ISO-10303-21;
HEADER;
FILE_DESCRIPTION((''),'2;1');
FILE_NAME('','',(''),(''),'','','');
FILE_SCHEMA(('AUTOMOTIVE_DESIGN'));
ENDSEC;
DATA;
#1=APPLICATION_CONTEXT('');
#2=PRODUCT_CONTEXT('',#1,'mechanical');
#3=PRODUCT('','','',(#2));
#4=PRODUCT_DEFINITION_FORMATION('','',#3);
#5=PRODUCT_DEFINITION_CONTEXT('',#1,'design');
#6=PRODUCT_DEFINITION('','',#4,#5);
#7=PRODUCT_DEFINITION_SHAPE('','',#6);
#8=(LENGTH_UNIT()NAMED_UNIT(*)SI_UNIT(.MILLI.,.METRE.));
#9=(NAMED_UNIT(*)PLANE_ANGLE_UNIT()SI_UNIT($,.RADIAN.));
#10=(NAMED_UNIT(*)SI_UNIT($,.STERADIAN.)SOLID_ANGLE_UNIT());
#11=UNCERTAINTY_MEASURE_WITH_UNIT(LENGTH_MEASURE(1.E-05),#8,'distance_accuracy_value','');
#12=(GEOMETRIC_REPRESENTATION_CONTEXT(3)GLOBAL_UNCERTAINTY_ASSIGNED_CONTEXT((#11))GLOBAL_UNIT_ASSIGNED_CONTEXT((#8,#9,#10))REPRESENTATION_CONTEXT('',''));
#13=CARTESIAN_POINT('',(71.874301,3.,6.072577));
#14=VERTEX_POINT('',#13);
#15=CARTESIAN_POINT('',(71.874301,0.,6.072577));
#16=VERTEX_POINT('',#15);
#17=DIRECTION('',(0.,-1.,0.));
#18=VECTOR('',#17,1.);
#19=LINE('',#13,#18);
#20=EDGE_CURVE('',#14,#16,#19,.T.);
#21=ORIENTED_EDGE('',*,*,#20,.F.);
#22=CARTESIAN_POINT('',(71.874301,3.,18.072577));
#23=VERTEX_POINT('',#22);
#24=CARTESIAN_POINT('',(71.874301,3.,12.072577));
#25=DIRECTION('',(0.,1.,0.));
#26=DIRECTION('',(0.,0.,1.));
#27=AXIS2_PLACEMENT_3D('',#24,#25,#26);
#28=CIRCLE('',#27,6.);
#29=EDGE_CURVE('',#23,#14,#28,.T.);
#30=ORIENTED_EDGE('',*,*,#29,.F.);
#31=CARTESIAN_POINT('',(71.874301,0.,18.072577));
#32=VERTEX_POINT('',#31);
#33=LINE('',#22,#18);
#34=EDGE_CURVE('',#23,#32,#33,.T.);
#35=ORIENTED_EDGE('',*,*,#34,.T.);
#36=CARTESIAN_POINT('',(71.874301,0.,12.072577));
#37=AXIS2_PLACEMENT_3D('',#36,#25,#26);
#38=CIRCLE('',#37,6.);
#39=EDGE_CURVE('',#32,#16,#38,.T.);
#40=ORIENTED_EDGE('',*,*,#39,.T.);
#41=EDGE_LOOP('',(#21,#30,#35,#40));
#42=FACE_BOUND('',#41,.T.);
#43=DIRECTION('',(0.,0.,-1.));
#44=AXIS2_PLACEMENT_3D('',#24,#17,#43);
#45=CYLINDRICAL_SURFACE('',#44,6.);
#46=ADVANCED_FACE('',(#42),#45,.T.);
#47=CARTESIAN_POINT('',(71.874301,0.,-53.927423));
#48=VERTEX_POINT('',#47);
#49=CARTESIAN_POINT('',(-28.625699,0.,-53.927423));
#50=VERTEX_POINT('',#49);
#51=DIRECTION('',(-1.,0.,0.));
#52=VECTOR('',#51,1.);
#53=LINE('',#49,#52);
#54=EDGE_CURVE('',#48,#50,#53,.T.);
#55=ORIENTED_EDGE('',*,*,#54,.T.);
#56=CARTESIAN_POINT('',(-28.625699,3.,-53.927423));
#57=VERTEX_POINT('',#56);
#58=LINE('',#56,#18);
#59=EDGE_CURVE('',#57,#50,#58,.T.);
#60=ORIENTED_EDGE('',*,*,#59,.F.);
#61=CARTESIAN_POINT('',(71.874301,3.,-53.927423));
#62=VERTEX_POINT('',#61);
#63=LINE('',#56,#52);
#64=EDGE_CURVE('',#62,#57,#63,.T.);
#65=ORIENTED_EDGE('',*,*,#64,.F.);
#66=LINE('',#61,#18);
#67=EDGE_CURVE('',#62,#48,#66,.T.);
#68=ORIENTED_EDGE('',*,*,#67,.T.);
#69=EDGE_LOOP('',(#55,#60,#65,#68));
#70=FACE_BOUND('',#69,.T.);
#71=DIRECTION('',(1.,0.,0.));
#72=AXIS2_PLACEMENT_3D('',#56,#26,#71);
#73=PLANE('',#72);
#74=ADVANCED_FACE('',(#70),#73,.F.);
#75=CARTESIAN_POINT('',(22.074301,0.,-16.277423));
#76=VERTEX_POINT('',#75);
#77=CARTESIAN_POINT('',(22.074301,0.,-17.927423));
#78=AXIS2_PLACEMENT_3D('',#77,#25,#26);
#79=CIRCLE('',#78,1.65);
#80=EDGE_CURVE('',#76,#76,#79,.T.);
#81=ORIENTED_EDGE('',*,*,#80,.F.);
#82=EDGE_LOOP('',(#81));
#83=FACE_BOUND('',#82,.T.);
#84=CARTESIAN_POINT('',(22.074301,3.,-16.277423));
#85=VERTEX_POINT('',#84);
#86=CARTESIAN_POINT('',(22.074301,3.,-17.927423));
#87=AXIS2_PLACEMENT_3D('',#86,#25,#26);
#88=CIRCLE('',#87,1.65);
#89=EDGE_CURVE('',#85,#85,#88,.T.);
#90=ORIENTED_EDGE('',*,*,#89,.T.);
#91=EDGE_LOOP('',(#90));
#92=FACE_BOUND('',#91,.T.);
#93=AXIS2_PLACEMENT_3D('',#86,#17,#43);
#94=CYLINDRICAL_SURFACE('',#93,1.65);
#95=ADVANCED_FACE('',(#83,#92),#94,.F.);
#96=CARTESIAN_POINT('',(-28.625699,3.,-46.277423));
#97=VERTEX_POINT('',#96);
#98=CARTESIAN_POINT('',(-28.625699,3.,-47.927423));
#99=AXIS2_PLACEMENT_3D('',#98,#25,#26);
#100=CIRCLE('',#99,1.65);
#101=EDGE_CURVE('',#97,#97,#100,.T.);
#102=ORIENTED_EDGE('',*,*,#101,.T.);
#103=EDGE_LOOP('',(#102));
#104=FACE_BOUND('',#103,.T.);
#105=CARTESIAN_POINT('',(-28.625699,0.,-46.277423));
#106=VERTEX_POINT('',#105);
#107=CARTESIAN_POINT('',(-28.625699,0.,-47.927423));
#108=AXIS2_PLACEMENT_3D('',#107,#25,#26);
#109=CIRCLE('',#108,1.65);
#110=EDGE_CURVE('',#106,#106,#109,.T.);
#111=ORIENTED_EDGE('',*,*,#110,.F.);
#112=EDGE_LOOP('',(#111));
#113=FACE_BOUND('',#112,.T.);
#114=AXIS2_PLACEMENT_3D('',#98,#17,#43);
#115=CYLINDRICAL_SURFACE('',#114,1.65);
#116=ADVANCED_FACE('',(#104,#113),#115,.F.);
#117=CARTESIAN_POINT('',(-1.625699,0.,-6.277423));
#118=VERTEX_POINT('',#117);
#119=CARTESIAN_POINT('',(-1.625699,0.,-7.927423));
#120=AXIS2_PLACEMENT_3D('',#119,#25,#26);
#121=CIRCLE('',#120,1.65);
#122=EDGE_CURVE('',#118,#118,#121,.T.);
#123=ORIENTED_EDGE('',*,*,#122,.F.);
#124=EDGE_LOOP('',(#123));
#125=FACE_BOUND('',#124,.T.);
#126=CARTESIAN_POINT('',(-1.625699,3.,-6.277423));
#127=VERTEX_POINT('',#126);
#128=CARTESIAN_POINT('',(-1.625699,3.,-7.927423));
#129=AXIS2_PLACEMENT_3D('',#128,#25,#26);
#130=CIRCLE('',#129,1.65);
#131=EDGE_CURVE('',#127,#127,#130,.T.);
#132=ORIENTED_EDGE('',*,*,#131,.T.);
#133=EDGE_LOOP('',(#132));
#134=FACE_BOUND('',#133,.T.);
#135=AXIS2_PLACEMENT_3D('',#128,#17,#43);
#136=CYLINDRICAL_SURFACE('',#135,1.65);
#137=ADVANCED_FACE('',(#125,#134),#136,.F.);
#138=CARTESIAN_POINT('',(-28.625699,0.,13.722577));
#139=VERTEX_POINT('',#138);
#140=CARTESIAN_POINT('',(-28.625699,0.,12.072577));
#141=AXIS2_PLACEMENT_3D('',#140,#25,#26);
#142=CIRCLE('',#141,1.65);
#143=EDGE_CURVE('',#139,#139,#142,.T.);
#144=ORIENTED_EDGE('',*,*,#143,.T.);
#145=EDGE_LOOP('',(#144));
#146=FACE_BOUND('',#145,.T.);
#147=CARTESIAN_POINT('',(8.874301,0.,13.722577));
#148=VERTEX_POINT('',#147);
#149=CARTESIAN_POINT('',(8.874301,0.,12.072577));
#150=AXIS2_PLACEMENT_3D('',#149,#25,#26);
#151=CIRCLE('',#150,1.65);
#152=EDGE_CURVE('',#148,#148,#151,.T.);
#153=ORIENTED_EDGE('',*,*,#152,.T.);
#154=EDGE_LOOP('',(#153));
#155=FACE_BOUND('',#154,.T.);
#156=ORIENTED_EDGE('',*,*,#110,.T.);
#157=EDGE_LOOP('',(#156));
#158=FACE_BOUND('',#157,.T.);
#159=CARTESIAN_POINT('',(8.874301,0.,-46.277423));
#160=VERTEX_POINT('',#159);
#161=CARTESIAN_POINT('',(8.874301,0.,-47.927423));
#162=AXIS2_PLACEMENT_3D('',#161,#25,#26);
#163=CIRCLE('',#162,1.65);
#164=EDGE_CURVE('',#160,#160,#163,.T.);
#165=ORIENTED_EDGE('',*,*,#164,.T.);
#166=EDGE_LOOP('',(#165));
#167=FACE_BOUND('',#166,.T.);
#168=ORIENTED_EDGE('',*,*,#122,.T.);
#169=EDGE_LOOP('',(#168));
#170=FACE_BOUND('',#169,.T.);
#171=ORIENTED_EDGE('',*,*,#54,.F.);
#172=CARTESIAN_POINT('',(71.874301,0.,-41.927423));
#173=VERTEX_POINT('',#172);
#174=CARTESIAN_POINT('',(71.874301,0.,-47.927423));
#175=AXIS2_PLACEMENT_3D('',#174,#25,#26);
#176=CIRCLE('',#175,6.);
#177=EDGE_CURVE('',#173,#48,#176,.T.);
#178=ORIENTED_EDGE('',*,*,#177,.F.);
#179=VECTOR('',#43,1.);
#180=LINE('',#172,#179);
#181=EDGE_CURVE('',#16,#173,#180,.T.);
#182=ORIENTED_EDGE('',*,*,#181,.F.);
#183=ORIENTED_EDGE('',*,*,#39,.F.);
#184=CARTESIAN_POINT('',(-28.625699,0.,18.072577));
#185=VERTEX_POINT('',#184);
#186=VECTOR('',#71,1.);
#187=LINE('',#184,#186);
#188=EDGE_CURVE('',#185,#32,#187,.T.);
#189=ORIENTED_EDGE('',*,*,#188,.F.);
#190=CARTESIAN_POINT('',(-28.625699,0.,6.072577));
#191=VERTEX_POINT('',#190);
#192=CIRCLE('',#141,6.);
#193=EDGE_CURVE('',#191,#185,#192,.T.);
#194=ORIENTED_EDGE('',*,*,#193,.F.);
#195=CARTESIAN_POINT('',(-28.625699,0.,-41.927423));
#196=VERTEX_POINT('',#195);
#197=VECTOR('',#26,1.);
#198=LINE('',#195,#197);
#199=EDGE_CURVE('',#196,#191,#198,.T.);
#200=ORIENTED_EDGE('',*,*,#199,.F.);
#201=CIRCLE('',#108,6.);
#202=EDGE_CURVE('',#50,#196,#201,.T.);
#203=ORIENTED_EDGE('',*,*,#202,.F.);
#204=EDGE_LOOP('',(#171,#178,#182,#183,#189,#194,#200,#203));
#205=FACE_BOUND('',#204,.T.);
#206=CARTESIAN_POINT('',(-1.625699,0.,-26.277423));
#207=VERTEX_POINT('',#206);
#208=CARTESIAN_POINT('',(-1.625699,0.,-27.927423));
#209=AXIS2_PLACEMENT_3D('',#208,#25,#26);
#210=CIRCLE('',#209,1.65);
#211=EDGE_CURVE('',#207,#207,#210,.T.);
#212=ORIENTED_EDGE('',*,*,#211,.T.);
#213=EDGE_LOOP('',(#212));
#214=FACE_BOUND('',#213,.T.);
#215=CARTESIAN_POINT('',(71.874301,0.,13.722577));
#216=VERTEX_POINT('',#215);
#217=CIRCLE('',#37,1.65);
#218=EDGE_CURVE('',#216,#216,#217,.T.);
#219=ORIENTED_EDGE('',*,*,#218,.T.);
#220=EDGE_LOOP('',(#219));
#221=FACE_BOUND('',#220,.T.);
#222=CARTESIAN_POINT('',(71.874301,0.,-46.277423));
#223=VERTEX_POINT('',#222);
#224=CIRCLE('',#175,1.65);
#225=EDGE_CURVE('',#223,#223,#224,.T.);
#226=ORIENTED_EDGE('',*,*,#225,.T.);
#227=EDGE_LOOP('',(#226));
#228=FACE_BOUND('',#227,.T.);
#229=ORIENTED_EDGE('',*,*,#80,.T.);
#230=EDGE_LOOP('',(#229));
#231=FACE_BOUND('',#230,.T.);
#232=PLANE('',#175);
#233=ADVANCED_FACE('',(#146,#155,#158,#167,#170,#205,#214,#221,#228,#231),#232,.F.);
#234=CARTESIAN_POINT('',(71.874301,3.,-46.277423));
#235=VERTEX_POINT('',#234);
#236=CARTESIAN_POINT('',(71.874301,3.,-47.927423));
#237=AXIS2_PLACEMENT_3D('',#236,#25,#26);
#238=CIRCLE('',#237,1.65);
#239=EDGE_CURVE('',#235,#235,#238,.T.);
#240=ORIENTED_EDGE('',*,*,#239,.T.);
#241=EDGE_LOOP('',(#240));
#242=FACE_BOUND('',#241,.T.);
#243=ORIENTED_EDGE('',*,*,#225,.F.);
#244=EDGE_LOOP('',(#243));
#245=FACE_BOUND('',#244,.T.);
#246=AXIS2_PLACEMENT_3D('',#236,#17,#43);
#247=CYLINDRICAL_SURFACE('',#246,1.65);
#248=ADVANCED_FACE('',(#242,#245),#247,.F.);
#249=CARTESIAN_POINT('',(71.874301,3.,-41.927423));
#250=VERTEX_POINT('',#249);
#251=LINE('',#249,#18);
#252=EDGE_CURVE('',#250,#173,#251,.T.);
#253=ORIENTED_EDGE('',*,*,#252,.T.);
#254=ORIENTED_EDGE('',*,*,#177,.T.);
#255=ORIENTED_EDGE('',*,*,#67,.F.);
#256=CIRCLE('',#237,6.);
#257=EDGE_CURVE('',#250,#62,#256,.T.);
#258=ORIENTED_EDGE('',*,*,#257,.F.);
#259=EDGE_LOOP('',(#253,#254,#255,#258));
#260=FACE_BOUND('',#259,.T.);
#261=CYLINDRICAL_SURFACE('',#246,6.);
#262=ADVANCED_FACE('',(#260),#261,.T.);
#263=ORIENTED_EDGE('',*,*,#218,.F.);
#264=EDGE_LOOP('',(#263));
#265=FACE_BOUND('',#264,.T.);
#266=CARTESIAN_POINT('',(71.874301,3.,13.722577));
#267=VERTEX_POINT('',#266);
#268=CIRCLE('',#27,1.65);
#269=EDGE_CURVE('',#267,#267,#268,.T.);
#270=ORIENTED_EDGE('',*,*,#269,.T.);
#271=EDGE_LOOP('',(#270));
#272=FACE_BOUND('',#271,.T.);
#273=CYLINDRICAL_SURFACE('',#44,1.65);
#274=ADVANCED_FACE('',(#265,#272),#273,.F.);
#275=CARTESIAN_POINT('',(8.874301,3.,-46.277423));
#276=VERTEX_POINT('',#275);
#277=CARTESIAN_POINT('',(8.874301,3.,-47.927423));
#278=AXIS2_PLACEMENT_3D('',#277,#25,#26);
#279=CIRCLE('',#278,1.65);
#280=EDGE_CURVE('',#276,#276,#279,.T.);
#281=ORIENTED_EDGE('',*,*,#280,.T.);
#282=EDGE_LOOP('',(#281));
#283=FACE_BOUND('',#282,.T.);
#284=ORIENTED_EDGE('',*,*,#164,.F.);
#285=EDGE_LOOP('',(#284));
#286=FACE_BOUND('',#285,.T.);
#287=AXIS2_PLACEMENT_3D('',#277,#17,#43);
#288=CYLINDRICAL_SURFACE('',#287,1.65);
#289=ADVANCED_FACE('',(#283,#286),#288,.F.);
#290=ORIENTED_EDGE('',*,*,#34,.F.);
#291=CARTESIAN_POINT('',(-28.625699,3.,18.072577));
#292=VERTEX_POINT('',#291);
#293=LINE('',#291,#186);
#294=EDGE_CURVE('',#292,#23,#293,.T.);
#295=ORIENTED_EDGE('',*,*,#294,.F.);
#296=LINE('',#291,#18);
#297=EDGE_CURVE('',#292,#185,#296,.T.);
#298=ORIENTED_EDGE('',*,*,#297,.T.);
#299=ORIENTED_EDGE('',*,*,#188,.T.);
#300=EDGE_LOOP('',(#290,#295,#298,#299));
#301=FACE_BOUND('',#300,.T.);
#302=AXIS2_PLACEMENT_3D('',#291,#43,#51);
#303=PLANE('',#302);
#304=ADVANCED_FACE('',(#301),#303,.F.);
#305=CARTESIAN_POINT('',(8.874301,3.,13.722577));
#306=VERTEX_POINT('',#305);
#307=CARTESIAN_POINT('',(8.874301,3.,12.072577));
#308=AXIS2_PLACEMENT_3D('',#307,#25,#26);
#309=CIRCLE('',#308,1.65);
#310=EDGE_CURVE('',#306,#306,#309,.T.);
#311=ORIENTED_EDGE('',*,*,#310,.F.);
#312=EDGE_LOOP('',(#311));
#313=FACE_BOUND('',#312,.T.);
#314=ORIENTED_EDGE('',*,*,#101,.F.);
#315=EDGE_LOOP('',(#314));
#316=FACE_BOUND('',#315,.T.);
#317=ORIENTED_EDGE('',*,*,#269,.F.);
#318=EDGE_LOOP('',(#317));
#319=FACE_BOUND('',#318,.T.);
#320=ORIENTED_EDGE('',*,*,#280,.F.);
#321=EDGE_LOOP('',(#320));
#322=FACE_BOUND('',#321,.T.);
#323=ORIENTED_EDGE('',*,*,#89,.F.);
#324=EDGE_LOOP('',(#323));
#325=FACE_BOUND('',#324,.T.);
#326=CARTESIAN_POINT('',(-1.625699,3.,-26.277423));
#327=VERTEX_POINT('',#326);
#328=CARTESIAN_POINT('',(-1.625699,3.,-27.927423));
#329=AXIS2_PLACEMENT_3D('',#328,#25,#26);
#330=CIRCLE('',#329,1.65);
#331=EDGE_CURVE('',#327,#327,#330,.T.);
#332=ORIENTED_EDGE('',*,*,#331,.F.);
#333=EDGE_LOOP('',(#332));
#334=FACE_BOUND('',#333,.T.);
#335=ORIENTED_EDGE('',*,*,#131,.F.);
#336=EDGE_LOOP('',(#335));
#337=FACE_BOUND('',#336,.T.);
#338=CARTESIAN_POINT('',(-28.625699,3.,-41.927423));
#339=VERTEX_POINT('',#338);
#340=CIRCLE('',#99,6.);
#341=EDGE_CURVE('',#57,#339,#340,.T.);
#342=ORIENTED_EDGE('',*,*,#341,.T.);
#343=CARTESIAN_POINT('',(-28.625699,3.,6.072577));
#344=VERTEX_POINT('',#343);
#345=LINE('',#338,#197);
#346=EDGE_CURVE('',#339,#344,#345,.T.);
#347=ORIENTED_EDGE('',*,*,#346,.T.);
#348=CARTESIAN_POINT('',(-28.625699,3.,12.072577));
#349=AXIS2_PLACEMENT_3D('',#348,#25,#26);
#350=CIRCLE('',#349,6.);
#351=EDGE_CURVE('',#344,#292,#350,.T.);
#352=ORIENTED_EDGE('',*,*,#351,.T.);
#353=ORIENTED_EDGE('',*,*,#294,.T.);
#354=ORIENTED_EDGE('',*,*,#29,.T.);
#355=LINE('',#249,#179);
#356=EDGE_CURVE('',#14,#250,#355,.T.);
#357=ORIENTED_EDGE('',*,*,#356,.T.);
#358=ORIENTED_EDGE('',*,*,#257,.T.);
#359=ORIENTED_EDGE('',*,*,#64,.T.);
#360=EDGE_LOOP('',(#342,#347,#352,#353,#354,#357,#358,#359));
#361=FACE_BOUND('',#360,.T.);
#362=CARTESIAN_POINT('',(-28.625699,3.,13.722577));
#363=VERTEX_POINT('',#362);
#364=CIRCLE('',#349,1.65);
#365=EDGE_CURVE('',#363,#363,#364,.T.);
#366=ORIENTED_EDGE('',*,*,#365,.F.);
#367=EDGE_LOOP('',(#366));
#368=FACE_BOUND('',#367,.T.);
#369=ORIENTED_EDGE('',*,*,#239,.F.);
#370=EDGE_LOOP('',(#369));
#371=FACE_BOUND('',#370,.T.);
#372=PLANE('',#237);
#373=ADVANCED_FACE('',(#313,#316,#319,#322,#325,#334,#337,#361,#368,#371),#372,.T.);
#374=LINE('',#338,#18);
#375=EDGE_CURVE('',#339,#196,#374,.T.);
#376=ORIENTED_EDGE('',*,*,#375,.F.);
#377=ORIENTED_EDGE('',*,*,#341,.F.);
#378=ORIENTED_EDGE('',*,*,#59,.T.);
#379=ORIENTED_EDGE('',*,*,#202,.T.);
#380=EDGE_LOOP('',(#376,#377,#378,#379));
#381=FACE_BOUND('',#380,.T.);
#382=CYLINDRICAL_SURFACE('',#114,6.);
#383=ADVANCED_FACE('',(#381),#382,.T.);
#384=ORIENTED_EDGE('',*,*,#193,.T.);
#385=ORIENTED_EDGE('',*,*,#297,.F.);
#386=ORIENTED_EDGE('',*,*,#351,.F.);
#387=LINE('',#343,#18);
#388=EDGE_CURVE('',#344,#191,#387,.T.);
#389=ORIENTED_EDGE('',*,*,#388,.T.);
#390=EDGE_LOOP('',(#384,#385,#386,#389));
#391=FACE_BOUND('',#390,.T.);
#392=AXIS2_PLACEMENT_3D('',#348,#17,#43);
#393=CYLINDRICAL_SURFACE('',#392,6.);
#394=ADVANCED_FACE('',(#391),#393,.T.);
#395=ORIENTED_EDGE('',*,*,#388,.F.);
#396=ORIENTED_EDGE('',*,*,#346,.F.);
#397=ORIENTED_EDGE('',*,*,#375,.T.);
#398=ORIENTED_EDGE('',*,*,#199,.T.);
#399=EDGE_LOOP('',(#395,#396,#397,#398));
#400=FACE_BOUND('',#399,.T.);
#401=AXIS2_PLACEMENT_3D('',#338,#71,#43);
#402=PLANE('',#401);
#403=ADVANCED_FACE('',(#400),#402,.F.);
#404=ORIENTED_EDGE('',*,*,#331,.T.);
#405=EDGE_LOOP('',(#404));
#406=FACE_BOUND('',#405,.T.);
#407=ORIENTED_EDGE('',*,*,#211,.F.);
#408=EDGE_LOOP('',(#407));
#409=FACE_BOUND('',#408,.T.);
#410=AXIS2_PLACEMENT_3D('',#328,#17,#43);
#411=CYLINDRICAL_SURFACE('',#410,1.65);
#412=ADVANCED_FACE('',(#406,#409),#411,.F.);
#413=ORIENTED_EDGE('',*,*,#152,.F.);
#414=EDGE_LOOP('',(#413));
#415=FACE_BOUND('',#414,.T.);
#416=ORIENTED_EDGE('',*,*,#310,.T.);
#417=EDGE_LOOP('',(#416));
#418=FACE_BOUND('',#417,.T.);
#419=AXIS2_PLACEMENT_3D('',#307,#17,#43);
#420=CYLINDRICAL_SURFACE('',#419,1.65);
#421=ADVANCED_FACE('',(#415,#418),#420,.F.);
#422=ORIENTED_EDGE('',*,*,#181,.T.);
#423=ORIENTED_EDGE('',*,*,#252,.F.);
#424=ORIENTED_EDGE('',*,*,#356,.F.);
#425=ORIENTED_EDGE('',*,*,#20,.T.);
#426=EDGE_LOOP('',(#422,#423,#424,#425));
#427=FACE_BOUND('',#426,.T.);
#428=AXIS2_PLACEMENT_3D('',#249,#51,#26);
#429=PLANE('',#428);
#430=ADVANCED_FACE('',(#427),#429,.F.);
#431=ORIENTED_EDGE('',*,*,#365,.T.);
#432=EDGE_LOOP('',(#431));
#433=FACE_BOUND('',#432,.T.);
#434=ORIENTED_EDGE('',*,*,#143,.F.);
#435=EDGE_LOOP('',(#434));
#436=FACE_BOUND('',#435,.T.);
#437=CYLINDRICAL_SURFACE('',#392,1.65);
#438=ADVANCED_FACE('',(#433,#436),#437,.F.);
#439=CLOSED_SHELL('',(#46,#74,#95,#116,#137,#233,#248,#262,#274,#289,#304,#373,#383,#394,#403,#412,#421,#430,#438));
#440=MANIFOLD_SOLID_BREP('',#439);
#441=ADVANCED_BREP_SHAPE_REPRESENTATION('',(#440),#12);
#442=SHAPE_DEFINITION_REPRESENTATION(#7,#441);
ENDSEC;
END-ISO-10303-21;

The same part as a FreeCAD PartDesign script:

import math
import FreeCAD as App
import Part
import Sketcher
Q = App.Units.Quantity

doc = App.newDocument("Part")
body = doc.addObject("PartDesign::Body", "Body")

# Sketch on XZ plane
sketch1 = body.newObject("Sketcher::SketchObject", "Sketch")
sketch1.AttachmentSupport = (doc.getObject("XZ_Plane"), [""])
sketch1.MapMode = "FlatFace"
sketch1.addGeometry([
    Part.LineSegment(App.Vector(71.9, 6.1, 0), App.Vector(71.9, -41.9, 0)),  # 0
    Part.ArcOfCircle(Part.Circle(App.Vector(71.9, -47.9, 0), App.Vector(0, 0, 1), 6), math.radians(-90), math.radians(90)),  # 1
    Part.LineSegment(App.Vector(71.9, -53.9, 0), App.Vector(-28.6, -53.9, 0)),  # 2
    Part.ArcOfCircle(Part.Circle(App.Vector(-28.6, -47.9, 0), App.Vector(0, 0, 1), 6), math.radians(90), math.radians(270)),  # 3
    Part.LineSegment(App.Vector(-28.6, -41.9, 0), App.Vector(-28.6, 6.1, 0)),  # 4
    Part.ArcOfCircle(Part.Circle(App.Vector(-28.6, 12.1, 0), App.Vector(0, 0, 1), 6), math.radians(90), math.radians(270)),  # 5
    Part.LineSegment(App.Vector(-28.6, 18.1, 0), App.Vector(71.9, 18.1, 0)),  # 6
    Part.ArcOfCircle(Part.Circle(App.Vector(71.9, 12.1, 0), App.Vector(0, 0, 1), 6), math.radians(-90), math.radians(90)),  # 7
    Part.Circle(App.Vector(71.9, 12.1, 0), App.Vector(0, 0, 1), 1.6),  # 8
    Part.Circle(App.Vector(8.9, 12.1, 0), App.Vector(0, 0, 1), 1.6),  # 9
    Part.Circle(App.Vector(-28.6, 12.1, 0), App.Vector(0, 0, 1), 1.6),  # 10
    Part.Circle(App.Vector(-1.6, -7.9, 0), App.Vector(0, 0, 1), 1.6),  # 11
    Part.Circle(App.Vector(22.1, -17.9, 0), App.Vector(0, 0, 1), 1.6),  # 12
    Part.Circle(App.Vector(71.9, -47.9, 0), App.Vector(0, 0, 1), 1.6),  # 13
    Part.Circle(App.Vector(-1.6, -27.9, 0), App.Vector(0, 0, 1), 1.6),  # 14
    Part.Circle(App.Vector(8.9, -47.9, 0), App.Vector(0, 0, 1), 1.6),  # 15
    Part.Circle(App.Vector(-28.6, -47.9, 0), App.Vector(0, 0, 1), 1.6),  # 16
], False)
sketch1.addConstraint([
    Sketcher.Constraint("Coincident", 0, 2, 1, 2),
    Sketcher.Constraint("Tangent", 1, 1, 2, 1),
    Sketcher.Constraint("Tangent", 2, 2, 3, 2),
    Sketcher.Constraint("Coincident", 3, 1, 4, 1),
    Sketcher.Constraint("Coincident", 4, 2, 5, 2),
    Sketcher.Constraint("Tangent", 5, 1, 6, 1),
    Sketcher.Constraint("Tangent", 6, 2, 7, 2),
    Sketcher.Constraint("Coincident", 7, 1, 0, 1),
    Sketcher.Constraint("Vertical", 0),
    Sketcher.Constraint("Horizontal", 2),
    Sketcher.Constraint("Vertical", 4),
    Sketcher.Constraint("Horizontal", 6),
    Sketcher.Constraint("Coincident", 8, 3, 7, 3),
    Sketcher.Constraint("Coincident", 10, 3, 5, 3),
    Sketcher.Constraint("Coincident", 13, 3, 1, 3),
    Sketcher.Constraint("Coincident", 16, 3, 3, 3),
    Sketcher.Constraint("Equal", 1, 3),
    Sketcher.Constraint("Equal", 3, 5),
    Sketcher.Constraint("Equal", 5, 7),
    Sketcher.Constraint("Equal", 8, 9),
    Sketcher.Constraint("Equal", 9, 10),
    Sketcher.Constraint("Equal", 10, 11),
    Sketcher.Constraint("Equal", 11, 12),
    Sketcher.Constraint("Equal", 12, 13),
    Sketcher.Constraint("Equal", 13, 14),
    Sketcher.Constraint("Equal", 14, 15),
    Sketcher.Constraint("Equal", 15, 16),
    Sketcher.Constraint("Horizontal", 8, 3, 9, 3),
    Sketcher.Constraint("Horizontal", 13, 3, 15, 3),
    Sketcher.Constraint("Vertical", 3, 3, 5, 3),
    Sketcher.Constraint("Vertical", 1, 3, 7, 3),
    Sketcher.Constraint("Vertical", 11, 3, 14, 3),
    Sketcher.Constraint("Vertical", 9, 3, 15, 3),
    Sketcher.Constraint("Vertical", 13, 3, 0, 2),
    Sketcher.Constraint("Vertical", 2, 2, 3, 1),
    Sketcher.Constraint("Radius", 1, Q("6 mm")),
    Sketcher.Constraint("Diameter", 8, Q("3.3 mm")),
    Sketcher.Constraint("DistanceY", 0, 2, 0, 1, Q("48 mm")),
    Sketcher.Constraint("DistanceX", 2, 2, 2, 1, Q("100.5 mm")),
    Sketcher.Constraint("DistanceX", 9, 3, 7, 3, Q("63 mm")),
    Sketcher.Constraint("DistanceY", 11, 3, 9, 3, Q("20 mm")),
    Sketcher.Constraint("DistanceX", 5, 3, 11, 3, Q("27 mm")),
    Sketcher.Constraint("DistanceY", 12, 3, 11, 3, Q("10 mm")),
    Sketcher.Constraint("DistanceY", 14, 3, 11, 3, Q("20 mm")),
    Sketcher.Constraint("DistanceX", 11, 3, 12, 3, Q("23.7 mm")),
    Sketcher.Constraint("DistanceX", -1, 1, 1, 3, Q("71.874301 mm")),
    Sketcher.Constraint("DistanceY", 1, 3, -1, 1, Q("47.927423 mm")),
])
pad1 = body.newObject("PartDesign::Pad", "Pad")
pad1.Profile = sketch1
pad1.Length = 3
pad1.Reversed = True

doc.recompute()
